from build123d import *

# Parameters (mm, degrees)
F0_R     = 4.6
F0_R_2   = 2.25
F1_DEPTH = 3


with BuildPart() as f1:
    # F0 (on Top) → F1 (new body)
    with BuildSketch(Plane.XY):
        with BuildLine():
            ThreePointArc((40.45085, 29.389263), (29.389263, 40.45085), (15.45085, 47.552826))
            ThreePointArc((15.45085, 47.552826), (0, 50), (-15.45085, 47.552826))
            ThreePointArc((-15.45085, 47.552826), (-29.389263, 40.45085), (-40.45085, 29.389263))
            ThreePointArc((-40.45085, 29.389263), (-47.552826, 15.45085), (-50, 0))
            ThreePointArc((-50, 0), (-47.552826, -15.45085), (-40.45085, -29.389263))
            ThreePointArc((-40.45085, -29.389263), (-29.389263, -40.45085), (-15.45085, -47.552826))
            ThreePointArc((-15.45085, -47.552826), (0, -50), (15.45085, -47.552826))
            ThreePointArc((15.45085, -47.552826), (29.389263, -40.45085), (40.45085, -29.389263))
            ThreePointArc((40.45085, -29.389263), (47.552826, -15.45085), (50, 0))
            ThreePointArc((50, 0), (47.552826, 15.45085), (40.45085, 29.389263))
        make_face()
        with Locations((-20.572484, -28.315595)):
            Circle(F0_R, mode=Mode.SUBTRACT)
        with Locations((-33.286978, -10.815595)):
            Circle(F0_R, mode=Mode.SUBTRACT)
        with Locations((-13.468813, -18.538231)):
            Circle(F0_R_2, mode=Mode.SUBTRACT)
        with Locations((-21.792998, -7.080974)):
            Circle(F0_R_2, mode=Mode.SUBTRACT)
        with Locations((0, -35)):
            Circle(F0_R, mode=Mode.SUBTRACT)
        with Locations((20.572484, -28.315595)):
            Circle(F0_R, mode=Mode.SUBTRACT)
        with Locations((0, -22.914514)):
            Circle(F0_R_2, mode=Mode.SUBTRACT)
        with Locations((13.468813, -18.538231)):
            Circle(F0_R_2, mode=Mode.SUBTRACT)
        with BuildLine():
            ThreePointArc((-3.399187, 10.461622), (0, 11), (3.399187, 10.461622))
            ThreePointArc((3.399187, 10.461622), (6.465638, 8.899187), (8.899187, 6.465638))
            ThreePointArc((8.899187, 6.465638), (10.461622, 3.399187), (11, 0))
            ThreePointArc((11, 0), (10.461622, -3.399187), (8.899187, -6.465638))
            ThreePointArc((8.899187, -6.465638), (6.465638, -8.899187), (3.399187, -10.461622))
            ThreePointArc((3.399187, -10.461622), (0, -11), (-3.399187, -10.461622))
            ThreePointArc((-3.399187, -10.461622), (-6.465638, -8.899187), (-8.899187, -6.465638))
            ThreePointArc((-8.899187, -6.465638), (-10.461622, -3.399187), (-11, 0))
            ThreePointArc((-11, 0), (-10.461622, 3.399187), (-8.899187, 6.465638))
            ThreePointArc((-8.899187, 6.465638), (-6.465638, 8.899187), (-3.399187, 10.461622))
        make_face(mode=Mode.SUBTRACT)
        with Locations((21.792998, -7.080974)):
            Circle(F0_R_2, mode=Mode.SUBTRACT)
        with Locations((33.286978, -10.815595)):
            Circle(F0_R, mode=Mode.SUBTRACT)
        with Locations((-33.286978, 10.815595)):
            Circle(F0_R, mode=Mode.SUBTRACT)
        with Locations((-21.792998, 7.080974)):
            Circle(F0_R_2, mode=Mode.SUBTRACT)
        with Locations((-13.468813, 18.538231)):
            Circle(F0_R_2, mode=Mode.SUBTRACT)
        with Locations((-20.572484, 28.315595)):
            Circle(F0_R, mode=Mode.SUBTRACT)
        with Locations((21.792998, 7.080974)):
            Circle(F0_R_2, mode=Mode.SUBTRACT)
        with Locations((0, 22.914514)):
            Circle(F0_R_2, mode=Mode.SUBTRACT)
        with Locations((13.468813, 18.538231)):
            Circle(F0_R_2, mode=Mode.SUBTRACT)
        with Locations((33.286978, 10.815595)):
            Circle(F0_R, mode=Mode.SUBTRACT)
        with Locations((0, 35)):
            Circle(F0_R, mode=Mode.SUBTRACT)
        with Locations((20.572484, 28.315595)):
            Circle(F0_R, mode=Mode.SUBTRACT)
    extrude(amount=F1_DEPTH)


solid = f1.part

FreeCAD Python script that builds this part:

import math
import FreeCAD as App
import Part
import Sketcher
from FreeCAD import Vector

doc = App.newDocument("Part")
body = doc.addObject("PartDesign::Body", "Body")

# Sketch on XY plane
sketch1 = body.newObject("Sketcher::SketchObject", "Sketch")
sketch1.AttachmentSupport = (doc.getObject("XY_Plane"), [""])
sketch1.MapMode = "FlatFace"
sketch1.addGeometry(Part.ArcOfCircle(Part.Circle(Vector(0, 0, 0), Vector(0, 0, 1), 50), math.radians(36), math.radians(72)), False)
sketch1.addGeometry(Part.ArcOfCircle(Part.Circle(Vector(0, 0, 0), Vector(0, 0, 1), 50), math.radians(72), math.radians(108)), False)
sketch1.addGeometry(Part.ArcOfCircle(Part.Circle(Vector(0, 0, 0), Vector(0, 0, 1), 50), math.radians(108), math.radians(144)), False)
sketch1.addGeometry(Part.ArcOfCircle(Part.Circle(Vector(0, 0, 0), Vector(0, 0, 1), 50), math.radians(144), math.radians(180)), False)
sketch1.addGeometry(Part.ArcOfCircle(Part.Circle(Vector(0, 0, 0), Vector(0, 0, 1), 50), math.radians(180), math.radians(216)), False)
sketch1.addGeometry(Part.ArcOfCircle(Part.Circle(Vector(0, 0, 0), Vector(0, 0, 1), 50), math.radians(-144), math.radians(-108)), False)
sketch1.addGeometry(Part.ArcOfCircle(Part.Circle(Vector(0, 0, 0), Vector(0, 0, 1), 50), math.radians(-108), math.radians(-72)), False)
sketch1.addGeometry(Part.ArcOfCircle(Part.Circle(Vector(0, 0, 0), Vector(0, 0, 1), 50), math.radians(-72), math.radians(-36)), False)
sketch1.addGeometry(Part.ArcOfCircle(Part.Circle(Vector(0, 0, 0), Vector(0, 0, 1), 50), math.radians(-36), math.radians(0)), False)
sketch1.addGeometry(Part.ArcOfCircle(Part.Circle(Vector(0, 0, 0), Vector(0, 0, 1), 50), math.radians(0), math.radians(36)), False)
sketch1.addGeometry(Part.Circle(Vector(-20.6, -28.3, 0), Vector(0, 0, 1), 4.6), False)
sketch1.addGeometry(Part.Circle(Vector(-33.3, -10.8, 0), Vector(0, 0, 1), 4.6), False)
sketch1.addGeometry(Part.Circle(Vector(-21.8, -7.1, 0), Vector(0, 0, 1), 2.2), False)
sketch1.addGeometry(Part.Circle(Vector(-13.5, -18.5, 0), Vector(0, 0, 1), 2.2), False)
sketch1.addGeometry(Part.Circle(Vector(0, -35, 0), Vector(0, 0, 1), 4.6), False)
sketch1.addGeometry(Part.Circle(Vector(0, -22.9, 0), Vector(0, 0, 1), 2.2), False)
sketch1.addGeometry(Part.Circle(Vector(20.6, -28.3, 0), Vector(0, 0, 1), 4.6), False)
sketch1.addGeometry(Part.Circle(Vector(13.5, -18.5, 0), Vector(0, 0, 1), 2.2), False)
sketch1.addGeometry(Part.Circle(Vector(33.3, -10.8, 0), Vector(0, 0, 1), 4.6), False)
sketch1.addGeometry(Part.Circle(Vector(21.8, -7.1, 0), Vector(0, 0, 1), 2.2), False)
sketch1.addGeometry(Part.Circle(Vector(-21.8, 7.1, 0), Vector(0, 0, 1), 2.2), False)
sketch1.addGeometry(Part.Circle(Vector(-33.3, 10.8, 0), Vector(0, 0, 1), 4.6), False)
sketch1.addGeometry(Part.Circle(Vector(-13.5, 18.5, 0), Vector(0, 0, 1), 2.2), False)
sketch1.addGeometry(Part.Circle(Vector(-20.6, 28.3, 0), Vector(0, 0, 1), 4.6), False)
sketch1.addGeometry(Part.ArcOfCircle(Part.Circle(Vector(0, 0, 0), Vector(0, 0, 1), 11), math.radians(108), math.radians(144)), False)
sketch1.addGeometry(Part.ArcOfCircle(Part.Circle(Vector(0, 0, 0), Vector(0, 0, 1), 11), math.radians(72), math.radians(108)), False)
sketch1.addGeometry(Part.ArcOfCircle(Part.Circle(Vector(0, 0, 0), Vector(0, 0, 1), 11), math.radians(36), math.radians(72)), False)
sketch1.addGeometry(Part.ArcOfCircle(Part.Circle(Vector(0, 0, 0), Vector(0, 0, 1), 11), math.radians(0), math.radians(36)), False)
sketch1.addGeometry(Part.ArcOfCircle(Part.Circle(Vector(0, 0, 0), Vector(0, 0, 1), 11), math.radians(-36), math.radians(0)), False)
sketch1.addGeometry(Part.ArcOfCircle(Part.Circle(Vector(0, 0, 0), Vector(0, 0, 1), 11), math.radians(-72), math.radians(-36)), False)
sketch1.addGeometry(Part.ArcOfCircle(Part.Circle(Vector(0, 0, 0), Vector(0, 0, 1), 11), math.radians(-108), math.radians(-72)), False)
sketch1.addGeometry(Part.ArcOfCircle(Part.Circle(Vector(0, 0, 0), Vector(0, 0, 1), 11), math.radians(-144), math.radians(-108)), False)
sketch1.addGeometry(Part.ArcOfCircle(Part.Circle(Vector(0, 0, 0), Vector(0, 0, 1), 11), math.radians(180), math.radians(216)), False)
sketch1.addGeometry(Part.ArcOfCircle(Part.Circle(Vector(0, 0, 0), Vector(0, 0, 1), 11), math.radians(144), math.radians(180)), False)
sketch1.addGeometry(Part.Circle(Vector(13.5, 18.5, 0), Vector(0, 0, 1), 2.2), False)
sketch1.addGeometry(Part.Circle(Vector(21.8, 7.1, 0), Vector(0, 0, 1), 2.2), False)
sketch1.addGeometry(Part.Circle(Vector(33.3, 10.8, 0), Vector(0, 0, 1), 4.6), False)
sketch1.addGeometry(Part.Circle(Vector(0, 22.9, 0), Vector(0, 0, 1), 2.2), False)
sketch1.addGeometry(Part.Circle(Vector(0, 35, 0), Vector(0, 0, 1), 4.6), False)
sketch1.addGeometry(Part.Circle(Vector(20.6, 28.3, 0), Vector(0, 0, 1), 4.6), False)
sketch1.addConstraint(Sketcher.Constraint("Tangent", 0, 2, 1, 1))
sketch1.addConstraint(Sketcher.Constraint("Tangent", 1, 2, 2, 1))
sketch1.addConstraint(Sketcher.Constraint("Tangent", 2, 2, 3, 1))
sketch1.addConstraint(Sketcher.Constraint("Tangent", 3, 2, 4, 1))
sketch1.addConstraint(Sketcher.Constraint("Tangent", 4, 2, 5, 1))
sketch1.addConstraint(Sketcher.Constraint("Tangent", 5, 2, 6, 1))
sketch1.addConstraint(Sketcher.Constraint("Tangent", 6, 2, 7, 1))
sketch1.addConstraint(Sketcher.Constraint("Tangent", 7, 2, 8, 1))
sketch1.addConstraint(Sketcher.Constraint("Tangent", 8, 2, 9, 1))
sketch1.addConstraint(Sketcher.Constraint("Tangent", 9, 2, 0, 1))
sketch1.addConstraint(Sketcher.Constraint("Tangent", 24, 1, 25, 2))
sketch1.addConstraint(Sketcher.Constraint("Tangent", 25, 1, 26, 2))
sketch1.addConstraint(Sketcher.Constraint("Tangent", 26, 1, 27, 2))
sketch1.addConstraint(Sketcher.Constraint("Tangent", 27, 1, 28, 2))
sketch1.addConstraint(Sketcher.Constraint("Tangent", 28, 1, 29, 2))
sketch1.addConstraint(Sketcher.Constraint("Tangent", 29, 1, 30, 2))
sketch1.addConstraint(Sketcher.Constraint("Tangent", 30, 1, 31, 2))
sketch1.addConstraint(Sketcher.Constraint("Tangent", 31, 1, 32, 2))
sketch1.addConstraint(Sketcher.Constraint("Tangent", 32, 1, 33, 2))
sketch1.addConstraint(Sketcher.Constraint("Tangent", 33, 1, 24, 2))
sketch1.addConstraint(Sketcher.Constraint("Coincident", 0, 3, -1, 1))
sketch1.addConstraint(Sketcher.Constraint("Coincident", 2, 3, -1, 1))
sketch1.addConstraint(Sketcher.Constraint("Coincident", 4, 3, -1, 1))
sketch1.addConstraint(Sketcher.Constraint("Coincident", 6, 3, -1, 1))
sketch1.addConstraint(Sketcher.Constraint("Coincident", 24, 3, -1, 1))
sketch1.addConstraint(Sketcher.Constraint("Coincident", 26, 3, -1, 1))
sketch1.addConstraint(Sketcher.Constraint("Coincident", 28, 3, -1, 1))
sketch1.addConstraint(Sketcher.Constraint("Coincident", 30, 3, -1, 1))
sketch1.addConstraint(Sketcher.Constraint("Equal", 5, 7))
sketch1.addConstraint(Sketcher.Constraint("Equal", 10, 11))
sketch1.addConstraint(Sketcher.Constraint("Equal", 12, 13))
sketch1.addConstraint(Sketcher.Constraint("Equal", 11, 14))
sketch1.addConstraint(Sketcher.Constraint("Equal", 13, 15))
sketch1.addConstraint(Sketcher.Constraint("Equal", 14, 16))
sketch1.addConstraint(Sketcher.Constraint("Equal", 15, 17))
sketch1.addConstraint(Sketcher.Constraint("Equal", 16, 18))
sketch1.addConstraint(Sketcher.Constraint("Equal", 17, 19))
sketch1.addConstraint(Sketcher.Constraint("Equal", 19, 20))
sketch1.addConstraint(Sketcher.Constraint("Equal", 18, 21))
sketch1.addConstraint(Sketcher.Constraint("Equal", 20, 22))
sketch1.addConstraint(Sketcher.Constraint("Equal", 21, 23))
sketch1.addConstraint(Sketcher.Constraint("Equal", 29, 31))
sketch1.addConstraint(Sketcher.Constraint("Equal", 22, 34))
sketch1.addConstraint(Sketcher.Constraint("Equal", 34, 35))
sketch1.addConstraint(Sketcher.Constraint("Equal", 23, 36))
sketch1.addConstraint(Sketcher.Constraint("Equal", 35, 37))
sketch1.addConstraint(Sketcher.Constraint("Equal", 36, 38))
sketch1.addConstraint(Sketcher.Constraint("Equal", 38, 39))
sketch1.addConstraint(Sketcher.Constraint("Symmetric", 19, 3, 20, 3, -1, 1))
sketch1.addConstraint(Sketcher.Constraint("Symmetric", 18, 3, 21, 3, -1, 1))
sketch1.addConstraint(Sketcher.Constraint("Symmetric", 17, 3, 22, 3, -1, 1))
sketch1.addConstraint(Sketcher.Constraint("Symmetric", 16, 3, 23, 3, -1, 1))
sketch1.addConstraint(Sketcher.Constraint("Symmetric", 13, 3, 34, 3, -1, 1))
sketch1.addConstraint(Sketcher.Constraint("Symmetric", 12, 3, 35, 3, -1, 1))
sketch1.addConstraint(Sketcher.Constraint("Symmetric", 11, 3, 36, 3, -1, 1))
sketch1.addConstraint(Sketcher.Constraint("Symmetric", 15, 3, 37, 3, -1, 1))
sketch1.addConstraint(Sketcher.Constraint("Symmetric", 14, 3, 38, 3, -1, 1))
sketch1.addConstraint(Sketcher.Constraint("Symmetric", 10, 3, 39, 3, -1, 1))
sketch1.addConstraint(Sketcher.Constraint("Symmetric", 10, 3, 16, 3, -2))
sketch1.addConstraint(Sketcher.Constraint("Symmetric", 13, 3, 17, 3, -2))
sketch1.addConstraint(Sketcher.Constraint("Symmetric", 11, 3, 18, 3, -2))
sketch1.addConstraint(Sketcher.Constraint("Symmetric", 12, 3, 19, 3, -2))
sketch1.addConstraint(Sketcher.Constraint("PointOnObject", 14, 3, -2))
sketch1.addConstraint(Sketcher.Constraint("PointOnObject", 15, 3, -2))
sketch1.addConstraint(Sketcher.Constraint("PointOnObject", 3, 2, -1))
sketch1.addConstraint(Sketcher.Constraint("PointOnObject", 8, 2, -1))
sketch1.addConstraint(Sketcher.Constraint("PointOnObject", 27, 1, -1))
sketch1.addConstraint(Sketcher.Constraint("PointOnObject", 32, 1, -1))
sketch1.addConstraint(Sketcher.Constraint("Horizontal", 0, 2, 1, 2))
sketch1.addConstraint(Sketcher.Constraint("Horizontal", 5, 2, 6, 2))
sketch1.addConstraint(Sketcher.Constraint("Horizontal", 4, 2, 7, 2))
sketch1.addConstraint(Sketcher.Constraint("Horizontal", 2, 2, 9, 2))
sketch1.addConstraint(Sketcher.Constraint("Horizontal", 24, 1, 25, 1))
sketch1.addConstraint(Sketcher.Constraint("Horizontal", 29, 1, 30, 1))
sketch1.addConstraint(Sketcher.Constraint("Horizontal", 28, 1, 31, 1))
sketch1.addConstraint(Sketcher.Constraint("Horizontal", 26, 1, 33, 1))
sketch1.addConstraint(Sketcher.Constraint("Vertical", 2, 2, 4, 2))
sketch1.addConstraint(Sketcher.Constraint("Vertical", 1, 2, 5, 2))
sketch1.addConstraint(Sketcher.Constraint("Vertical", 26, 1, 28, 1))
sketch1.addConstraint(Sketcher.Constraint("Vertical", 25, 1, 29, 1))
sketch1.addConstraint(Sketcher.Constraint("Radius", 0, 49.999999))
sketch1.addConstraint(Sketcher.Constraint("Radius", 24, 11.000002))
sketch1.addConstraint(Sketcher.Constraint("Diameter", 10, 9.2))
sketch1.addConstraint(Sketcher.Constraint("Diameter", 12, 4.5))
sketch1.addConstraint(Sketcher.Constraint("DistanceY", 14, 3, -1, 1, 35.0))
sketch1.addConstraint(Sketcher.Constraint("DistanceX", 2, 2, 1, 2, 25.0))
sketch1.addConstraint(Sketcher.Constraint("DistanceY", 10, 3, 11, 3, 17.5))
sketch1.addConstraint(Sketcher.Constraint("DistanceX", 25, 1, 26, 1, 5.5))
sketch1.addConstraint(Sketcher.Constraint("DistanceX", 12, 3, -1, 1, 21.792998))
sketch1.addConstraint(Sketcher.Constraint("DistanceX", 1, 2, 0, 2, 30.9017))
sketch1.addConstraint(Sketcher.Constraint("DistanceY", 13, 3, -1, 1, 18.538231))
sketch1.addConstraint(Sketcher.Constraint("DistanceY", -1, 1, 25, 1, 10.461622))
sketch1.addConstraint(Sketcher.Constraint("DistanceY", 10, 3, 1, 3, 28.31559))
sketch1.addConstraint(Sketcher.Constraint("DistanceX", 11, 3, 12, 3, 11.49398))
sketch1.addConstraint(Sketcher.Constraint("DistanceY", 11, 3, 12, 3, 3.734621))
sketch1.addConstraint(Sketcher.Constraint("DistanceX", 10, 3, 13, 3, 7.103671))
sketch1.addConstraint(Sketcher.Constraint("DistanceX", 13, 3, 5, 3, 13.468812))
sketch1.addConstraint(Sketcher.Constraint("DistanceY", 10, 3, 15, 3, 5.401081))
pad1 = body.newObject("PartDesign::Pad", "Pad")
pad1.Profile = sketch1
pad1.Length = 3

doc.recompute()
